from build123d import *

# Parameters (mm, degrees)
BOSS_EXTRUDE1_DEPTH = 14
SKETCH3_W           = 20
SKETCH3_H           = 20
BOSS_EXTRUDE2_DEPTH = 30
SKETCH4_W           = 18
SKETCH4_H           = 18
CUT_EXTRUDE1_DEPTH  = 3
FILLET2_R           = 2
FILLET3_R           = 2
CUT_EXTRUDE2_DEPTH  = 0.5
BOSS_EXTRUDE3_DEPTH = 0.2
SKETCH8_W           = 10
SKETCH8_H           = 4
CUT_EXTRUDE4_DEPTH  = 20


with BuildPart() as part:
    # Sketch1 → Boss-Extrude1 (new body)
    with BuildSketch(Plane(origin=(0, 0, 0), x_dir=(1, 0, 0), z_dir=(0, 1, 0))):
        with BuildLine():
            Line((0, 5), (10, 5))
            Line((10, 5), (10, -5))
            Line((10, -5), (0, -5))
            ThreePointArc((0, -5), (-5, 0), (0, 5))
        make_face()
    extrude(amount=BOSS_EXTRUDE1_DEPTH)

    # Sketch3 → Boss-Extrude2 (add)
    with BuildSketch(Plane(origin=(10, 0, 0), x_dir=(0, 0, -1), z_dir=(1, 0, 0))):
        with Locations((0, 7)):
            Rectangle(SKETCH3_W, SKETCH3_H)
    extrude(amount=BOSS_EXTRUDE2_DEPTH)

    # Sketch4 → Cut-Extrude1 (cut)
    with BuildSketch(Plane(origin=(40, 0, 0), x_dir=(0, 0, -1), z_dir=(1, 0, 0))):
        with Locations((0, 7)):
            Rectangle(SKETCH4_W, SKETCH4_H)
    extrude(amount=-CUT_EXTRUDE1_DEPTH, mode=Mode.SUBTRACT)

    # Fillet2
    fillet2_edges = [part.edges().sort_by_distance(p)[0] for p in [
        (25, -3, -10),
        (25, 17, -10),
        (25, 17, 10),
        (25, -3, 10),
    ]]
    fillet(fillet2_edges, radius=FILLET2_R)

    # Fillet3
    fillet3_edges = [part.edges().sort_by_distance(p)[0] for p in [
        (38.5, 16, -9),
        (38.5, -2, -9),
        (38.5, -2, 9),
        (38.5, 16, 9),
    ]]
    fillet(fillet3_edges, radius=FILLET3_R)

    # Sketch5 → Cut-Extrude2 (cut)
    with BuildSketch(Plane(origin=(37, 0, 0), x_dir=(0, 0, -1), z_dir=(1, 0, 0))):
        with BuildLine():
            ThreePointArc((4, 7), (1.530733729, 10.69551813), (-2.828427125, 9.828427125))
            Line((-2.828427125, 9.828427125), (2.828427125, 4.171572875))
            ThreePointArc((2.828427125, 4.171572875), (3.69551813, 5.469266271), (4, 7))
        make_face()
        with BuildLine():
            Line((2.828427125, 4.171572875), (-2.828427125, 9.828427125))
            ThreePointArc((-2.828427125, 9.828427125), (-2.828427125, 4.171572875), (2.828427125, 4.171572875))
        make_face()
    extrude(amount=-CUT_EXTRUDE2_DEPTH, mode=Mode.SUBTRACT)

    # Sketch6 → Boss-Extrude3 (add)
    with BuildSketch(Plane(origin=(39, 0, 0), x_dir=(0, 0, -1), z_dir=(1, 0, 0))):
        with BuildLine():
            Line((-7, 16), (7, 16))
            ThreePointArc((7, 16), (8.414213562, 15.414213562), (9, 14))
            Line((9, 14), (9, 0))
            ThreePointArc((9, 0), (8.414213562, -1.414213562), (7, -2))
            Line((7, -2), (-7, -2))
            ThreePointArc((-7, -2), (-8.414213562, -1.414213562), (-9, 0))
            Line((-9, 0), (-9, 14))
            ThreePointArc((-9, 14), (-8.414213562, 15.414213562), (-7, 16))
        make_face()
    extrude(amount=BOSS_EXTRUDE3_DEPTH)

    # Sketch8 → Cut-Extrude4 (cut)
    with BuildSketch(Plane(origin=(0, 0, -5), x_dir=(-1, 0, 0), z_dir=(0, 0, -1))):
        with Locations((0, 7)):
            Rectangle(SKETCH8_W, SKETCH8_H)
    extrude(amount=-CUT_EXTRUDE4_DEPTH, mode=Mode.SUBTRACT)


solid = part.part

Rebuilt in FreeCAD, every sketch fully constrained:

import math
import FreeCAD as App
import Part
import Sketcher


def edges_at(feature, points):
    """Names of the edges that pass closest to the given points."""
    edges = feature.Shape.Edges
    near = lambda p: min(range(len(edges)), key=lambda i: edges[i].distToShape(Part.Vertex(*p))[0])
    return sorted({f"Edge{near(p) + 1}" for p in points})


def add_polygon(sketch, points):
    """Adds a closed chain of lines whose ends are joined by coincident constraints."""
    first, n = sketch.GeometryCount, len(points)
    for a, b in zip(points, points[1:] + points[:1]):
        sketch.addGeometry(Part.LineSegment(App.Vector(*a, 0), App.Vector(*b, 0)), False)
    for i in range(n):
        sketch.addConstraint(Sketcher.Constraint("Coincident", first + i, 2, first + (i + 1) % n, 1))

doc = App.newDocument("Part")
body = doc.addObject("PartDesign::Body", "Body")

sketch1 = body.newObject("Sketcher::SketchObject", "Sketch")
sketch1.AttachmentSupport = (doc.getObject("XZ_Plane"), [""])
sketch1.MapMode = "FlatFace"
sketch1.addGeometry(Part.LineSegment(App.Vector(10, -5, 0), App.Vector(0, -5, 0)), False)
sketch1.addGeometry(Part.ArcOfCircle(Part.Circle(App.Vector(0, 0, 0), App.Vector(0, 0, 1), 5), math.radians(90), math.radians(270)), False)
sketch1.addGeometry(Part.LineSegment(App.Vector(0, 5, 0), App.Vector(10, 5, 0)), False)
sketch1.addGeometry(Part.LineSegment(App.Vector(10, 5, 0), App.Vector(10, -5, 0)), False)
sketch1.addConstraint(Sketcher.Constraint("Tangent", 0, 2, 1, 2))
sketch1.addConstraint(Sketcher.Constraint("Tangent", 1, 1, 2, 1))
sketch1.addConstraint(Sketcher.Constraint("Coincident", 2, 2, 3, 1))
sketch1.addConstraint(Sketcher.Constraint("Coincident", 3, 2, 0, 1))
sketch1.addConstraint(Sketcher.Constraint("Horizontal", 0))
sketch1.addConstraint(Sketcher.Constraint("Horizontal", 2))
sketch1.addConstraint(Sketcher.Constraint("Vertical", 3))
sketch1.addConstraint(Sketcher.Constraint("Coincident", 1, 3, -1, 1))
sketch1.addConstraint(Sketcher.Constraint("Equal", 2, 3))
sketch1.addConstraint(Sketcher.Constraint("Radius", 1, 5.0))
pad1 = body.newObject("PartDesign::Pad", "Pad")
pad1.Profile = sketch1
pad1.Length = 14
pad1.Reversed = True

sketch2 = body.newObject("Sketcher::SketchObject", "Sketch001")
sketch2.AttachmentSupport = (doc.getObject("YZ_Plane"), [""])
sketch2.MapMode = "FlatFace"
sketch2.AttachmentOffset = App.Placement(App.Vector(0, 0, 10), App.Rotation())
add_polygon(sketch2, [(17, 10), (-3, 10), (-3, -10), (17, -10)])
sketch2.addConstraint(Sketcher.Constraint("Horizontal", 0))
sketch2.addConstraint(Sketcher.Constraint("Vertical", 1))
sketch2.addConstraint(Sketcher.Constraint("Horizontal", 2))
sketch2.addConstraint(Sketcher.Constraint("Vertical", 3))
sketch2.addConstraint(Sketcher.Constraint("Equal", 2, 1))
sketch2.addConstraint(Sketcher.Constraint("DistanceX", 0, 2, 0, 1, 20.0))
sketch2.addConstraint(Sketcher.Constraint("DistanceX", 0, 2, -1, 1, 3.0))
sketch2.addConstraint(Sketcher.Constraint("DistanceY", -1, 1, 0, 2, 10.0))
pad2 = body.newObject("PartDesign::Pad", "Pad001")
pad2.Profile = sketch2
pad2.Length = 30

sketch3 = body.newObject("Sketcher::SketchObject", "Sketch002")
sketch3.AttachmentSupport = (doc.getObject("YZ_Plane"), [""])
sketch3.MapMode = "FlatFace"
sketch3.AttachmentOffset = App.Placement(App.Vector(0, 0, 40), App.Rotation())
add_polygon(sketch3, [(16, 9), (-2, 9), (-2, -9), (16, -9)])
sketch3.addConstraint(Sketcher.Constraint("Horizontal", 0))
sketch3.addConstraint(Sketcher.Constraint("Vertical", 1))
sketch3.addConstraint(Sketcher.Constraint("Horizontal", 2))
sketch3.addConstraint(Sketcher.Constraint("Vertical", 3))
sketch3.addConstraint(Sketcher.Constraint("Equal", 2, 1))
sketch3.addConstraint(Sketcher.Constraint("DistanceX", 0, 2, 0, 1, 18.0))
sketch3.addConstraint(Sketcher.Constraint("DistanceX", 0, 2, -1, 1, 2.0))
sketch3.addConstraint(Sketcher.Constraint("DistanceY", -1, 1, 0, 2, 9.0))
pocket1 = body.newObject("PartDesign::Pocket", "Pocket")
pocket1.Profile = sketch3
pocket1.Length = 3
doc.recompute()

fillet = body.newObject("PartDesign::Fillet", "Fillet")
fillet.Base = (pocket1, edges_at(pocket1, [
    (25, -3, -10),
    (25, 17, -10),
    (25, 17, 10),
    (25, -3, 10),
]))
fillet.Radius = 2
doc.recompute()

fillet2 = body.newObject("PartDesign::Fillet", "Fillet001")
fillet2.Base = (fillet, edges_at(fillet, [
    (38.5, 16, -9),
    (38.5, -2, -9),
    (38.5, -2, 9),
    (38.5, 16, 9),
]))
fillet2.Radius = 2

sketch4 = body.newObject("Sketcher::SketchObject", "Sketch003")
sketch4.AttachmentSupport = (doc.getObject("YZ_Plane"), [""])
sketch4.MapMode = "FlatFace"
sketch4.AttachmentOffset = App.Placement(App.Vector(0, 0, 37), App.Rotation())
sketch4.addGeometry(Part.ArcOfCircle(Part.Circle(App.Vector(7, 0, 0), App.Vector(0, 0, 1), 4), math.radians(-90), math.radians(45)), False)
sketch4.addGeometry(Part.ArcOfCircle(Part.Circle(App.Vector(7, 0, 0), App.Vector(0, 0, 1), 4), math.radians(45), math.radians(225)), False)
sketch4.addGeometry(Part.ArcOfCircle(Part.Circle(App.Vector(7, 0, 0), App.Vector(0, 0, 1), 4), math.radians(-135), math.radians(-90)), False)
sketch4.addConstraint(Sketcher.Constraint("Tangent", 0, 2, 1, 1))
sketch4.addConstraint(Sketcher.Constraint("Tangent", 1, 2, 2, 1))
sketch4.addConstraint(Sketcher.Constraint("Tangent", 2, 2, 0, 1))
sketch4.addConstraint(Sketcher.Constraint("PointOnObject", 0, 3, -1))
sketch4.addConstraint(Sketcher.Constraint("Vertical", 1, 3, 2, 2))
sketch4.addConstraint(Sketcher.Constraint("Radius", 0, 4.0))
sketch4.addConstraint(Sketcher.Constraint("DistanceX", -1, 1, 0, 3, 7.0))
sketch4.addConstraint(Sketcher.Constraint("DistanceX", -1, 1, 0, 2, 9.828427))
sketch4.addConstraint(Sketcher.Constraint("DistanceX", -1, 1, 1, 2, 4.171573))
pocket2 = body.newObject("PartDesign::Pocket", "Pocket001")
pocket2.Profile = sketch4
pocket2.Length = 0.5

sketch5 = body.newObject("Sketcher::SketchObject", "Sketch004")
sketch5.AttachmentSupport = (doc.getObject("YZ_Plane"), [""])
sketch5.MapMode = "FlatFace"
sketch5.AttachmentOffset = App.Placement(App.Vector(0, 0, 39), App.Rotation())
sketch5.addGeometry(Part.LineSegment(App.Vector(16, -7, 0), App.Vector(16, 7, 0)), False)
sketch5.addGeometry(Part.ArcOfCircle(Part.Circle(App.Vector(14, 7, 0), App.Vector(0, 0, 1), 2), math.radians(0), math.radians(90)), False)
sketch5.addGeometry(Part.LineSegment(App.Vector(14, 9, 0), App.Vector(0, 9, 0)), False)
sketch5.addGeometry(Part.ArcOfCircle(Part.Circle(App.Vector(0, 7, 0), App.Vector(0, 0, 1), 2), math.radians(90), math.radians(180)), False)
sketch5.addGeometry(Part.LineSegment(App.Vector(-2, 7, 0), App.Vector(-2, -7, 0)), False)
sketch5.addGeometry(Part.ArcOfCircle(Part.Circle(App.Vector(0, -7, 0), App.Vector(0, 0, 1), 2), math.radians(-180), math.radians(-90)), False)
sketch5.addGeometry(Part.LineSegment(App.Vector(0, -9, 0), App.Vector(14, -9, 0)), False)
sketch5.addGeometry(Part.ArcOfCircle(Part.Circle(App.Vector(14, -7, 0), App.Vector(0, 0, 1), 2), math.radians(-90), math.radians(0)), False)
sketch5.addConstraint(Sketcher.Constraint("Tangent", 0, 2, 1, 1))
sketch5.addConstraint(Sketcher.Constraint("Tangent", 1, 2, 2, 1))
sketch5.addConstraint(Sketcher.Constraint("Tangent", 2, 2, 3, 1))
sketch5.addConstraint(Sketcher.Constraint("Tangent", 3, 2, 4, 1))
sketch5.addConstraint(Sketcher.Constraint("Tangent", 4, 2, 5, 1))
sketch5.addConstraint(Sketcher.Constraint("Tangent", 5, 2, 6, 1))
sketch5.addConstraint(Sketcher.Constraint("Tangent", 6, 2, 7, 1))
sketch5.addConstraint(Sketcher.Constraint("Tangent", 7, 2, 0, 1))
sketch5.addConstraint(Sketcher.Constraint("Vertical", 0))
sketch5.addConstraint(Sketcher.Constraint("Horizontal", 2))
sketch5.addConstraint(Sketcher.Constraint("Vertical", 4))
sketch5.addConstraint(Sketcher.Constraint("Horizontal", 6))
sketch5.addConstraint(Sketcher.Constraint("Equal", 1, 3))
sketch5.addConstraint(Sketcher.Constraint("Equal", 3, 5))
sketch5.addConstraint(Sketcher.Constraint("Equal", 5, 7))
sketch5.addConstraint(Sketcher.Constraint("Symmetric", 3, 3, 5, 3, -1, 1))
sketch5.addConstraint(Sketcher.Constraint("Equal", 6, 0))
sketch5.addConstraint(Sketcher.Constraint("Radius", 1, 2.0))
sketch5.addConstraint(Sketcher.Constraint("DistanceX", 2, 2, 2, 1, 14.0))
pad3 = body.newObject("PartDesign::Pad", "Pad002")
pad3.Profile = sketch5
pad3.Length = 0.2

sketch6 = body.newObject("Sketcher::SketchObject", "Sketch005")
sketch6.AttachmentSupport = (doc.getObject("XY_Plane"), [""])
sketch6.MapMode = "FlatFace"
sketch6.AttachmentOffset = App.Placement(App.Vector(0, 0, -5), App.Rotation())
add_polygon(sketch6, [(5, 9), (5, 5), (-5, 5), (-5, 9)])
sketch6.addConstraint(Sketcher.Constraint("Vertical", 0))
sketch6.addConstraint(Sketcher.Constraint("Horizontal", 1))
sketch6.addConstraint(Sketcher.Constraint("Vertical", 2))
sketch6.addConstraint(Sketcher.Constraint("Horizontal", 3))
sketch6.addConstraint(Sketcher.Constraint("DistanceX", 1, 2, 1, 1, 10.0))
sketch6.addConstraint(Sketcher.Constraint("DistanceY", 0, 2, 0, 1, 4.0))
sketch6.addConstraint(Sketcher.Constraint("DistanceX", -1, 1, 0, 2, 5.0))
sketch6.addConstraint(Sketcher.Constraint("DistanceY", -1, 1, 0, 2, 5.0))
pocket3 = body.newObject("PartDesign::Pocket", "Pocket002")
pocket3.Profile = sketch6
pocket3.Length = 20
pocket3.Reversed = True

doc.recompute()
